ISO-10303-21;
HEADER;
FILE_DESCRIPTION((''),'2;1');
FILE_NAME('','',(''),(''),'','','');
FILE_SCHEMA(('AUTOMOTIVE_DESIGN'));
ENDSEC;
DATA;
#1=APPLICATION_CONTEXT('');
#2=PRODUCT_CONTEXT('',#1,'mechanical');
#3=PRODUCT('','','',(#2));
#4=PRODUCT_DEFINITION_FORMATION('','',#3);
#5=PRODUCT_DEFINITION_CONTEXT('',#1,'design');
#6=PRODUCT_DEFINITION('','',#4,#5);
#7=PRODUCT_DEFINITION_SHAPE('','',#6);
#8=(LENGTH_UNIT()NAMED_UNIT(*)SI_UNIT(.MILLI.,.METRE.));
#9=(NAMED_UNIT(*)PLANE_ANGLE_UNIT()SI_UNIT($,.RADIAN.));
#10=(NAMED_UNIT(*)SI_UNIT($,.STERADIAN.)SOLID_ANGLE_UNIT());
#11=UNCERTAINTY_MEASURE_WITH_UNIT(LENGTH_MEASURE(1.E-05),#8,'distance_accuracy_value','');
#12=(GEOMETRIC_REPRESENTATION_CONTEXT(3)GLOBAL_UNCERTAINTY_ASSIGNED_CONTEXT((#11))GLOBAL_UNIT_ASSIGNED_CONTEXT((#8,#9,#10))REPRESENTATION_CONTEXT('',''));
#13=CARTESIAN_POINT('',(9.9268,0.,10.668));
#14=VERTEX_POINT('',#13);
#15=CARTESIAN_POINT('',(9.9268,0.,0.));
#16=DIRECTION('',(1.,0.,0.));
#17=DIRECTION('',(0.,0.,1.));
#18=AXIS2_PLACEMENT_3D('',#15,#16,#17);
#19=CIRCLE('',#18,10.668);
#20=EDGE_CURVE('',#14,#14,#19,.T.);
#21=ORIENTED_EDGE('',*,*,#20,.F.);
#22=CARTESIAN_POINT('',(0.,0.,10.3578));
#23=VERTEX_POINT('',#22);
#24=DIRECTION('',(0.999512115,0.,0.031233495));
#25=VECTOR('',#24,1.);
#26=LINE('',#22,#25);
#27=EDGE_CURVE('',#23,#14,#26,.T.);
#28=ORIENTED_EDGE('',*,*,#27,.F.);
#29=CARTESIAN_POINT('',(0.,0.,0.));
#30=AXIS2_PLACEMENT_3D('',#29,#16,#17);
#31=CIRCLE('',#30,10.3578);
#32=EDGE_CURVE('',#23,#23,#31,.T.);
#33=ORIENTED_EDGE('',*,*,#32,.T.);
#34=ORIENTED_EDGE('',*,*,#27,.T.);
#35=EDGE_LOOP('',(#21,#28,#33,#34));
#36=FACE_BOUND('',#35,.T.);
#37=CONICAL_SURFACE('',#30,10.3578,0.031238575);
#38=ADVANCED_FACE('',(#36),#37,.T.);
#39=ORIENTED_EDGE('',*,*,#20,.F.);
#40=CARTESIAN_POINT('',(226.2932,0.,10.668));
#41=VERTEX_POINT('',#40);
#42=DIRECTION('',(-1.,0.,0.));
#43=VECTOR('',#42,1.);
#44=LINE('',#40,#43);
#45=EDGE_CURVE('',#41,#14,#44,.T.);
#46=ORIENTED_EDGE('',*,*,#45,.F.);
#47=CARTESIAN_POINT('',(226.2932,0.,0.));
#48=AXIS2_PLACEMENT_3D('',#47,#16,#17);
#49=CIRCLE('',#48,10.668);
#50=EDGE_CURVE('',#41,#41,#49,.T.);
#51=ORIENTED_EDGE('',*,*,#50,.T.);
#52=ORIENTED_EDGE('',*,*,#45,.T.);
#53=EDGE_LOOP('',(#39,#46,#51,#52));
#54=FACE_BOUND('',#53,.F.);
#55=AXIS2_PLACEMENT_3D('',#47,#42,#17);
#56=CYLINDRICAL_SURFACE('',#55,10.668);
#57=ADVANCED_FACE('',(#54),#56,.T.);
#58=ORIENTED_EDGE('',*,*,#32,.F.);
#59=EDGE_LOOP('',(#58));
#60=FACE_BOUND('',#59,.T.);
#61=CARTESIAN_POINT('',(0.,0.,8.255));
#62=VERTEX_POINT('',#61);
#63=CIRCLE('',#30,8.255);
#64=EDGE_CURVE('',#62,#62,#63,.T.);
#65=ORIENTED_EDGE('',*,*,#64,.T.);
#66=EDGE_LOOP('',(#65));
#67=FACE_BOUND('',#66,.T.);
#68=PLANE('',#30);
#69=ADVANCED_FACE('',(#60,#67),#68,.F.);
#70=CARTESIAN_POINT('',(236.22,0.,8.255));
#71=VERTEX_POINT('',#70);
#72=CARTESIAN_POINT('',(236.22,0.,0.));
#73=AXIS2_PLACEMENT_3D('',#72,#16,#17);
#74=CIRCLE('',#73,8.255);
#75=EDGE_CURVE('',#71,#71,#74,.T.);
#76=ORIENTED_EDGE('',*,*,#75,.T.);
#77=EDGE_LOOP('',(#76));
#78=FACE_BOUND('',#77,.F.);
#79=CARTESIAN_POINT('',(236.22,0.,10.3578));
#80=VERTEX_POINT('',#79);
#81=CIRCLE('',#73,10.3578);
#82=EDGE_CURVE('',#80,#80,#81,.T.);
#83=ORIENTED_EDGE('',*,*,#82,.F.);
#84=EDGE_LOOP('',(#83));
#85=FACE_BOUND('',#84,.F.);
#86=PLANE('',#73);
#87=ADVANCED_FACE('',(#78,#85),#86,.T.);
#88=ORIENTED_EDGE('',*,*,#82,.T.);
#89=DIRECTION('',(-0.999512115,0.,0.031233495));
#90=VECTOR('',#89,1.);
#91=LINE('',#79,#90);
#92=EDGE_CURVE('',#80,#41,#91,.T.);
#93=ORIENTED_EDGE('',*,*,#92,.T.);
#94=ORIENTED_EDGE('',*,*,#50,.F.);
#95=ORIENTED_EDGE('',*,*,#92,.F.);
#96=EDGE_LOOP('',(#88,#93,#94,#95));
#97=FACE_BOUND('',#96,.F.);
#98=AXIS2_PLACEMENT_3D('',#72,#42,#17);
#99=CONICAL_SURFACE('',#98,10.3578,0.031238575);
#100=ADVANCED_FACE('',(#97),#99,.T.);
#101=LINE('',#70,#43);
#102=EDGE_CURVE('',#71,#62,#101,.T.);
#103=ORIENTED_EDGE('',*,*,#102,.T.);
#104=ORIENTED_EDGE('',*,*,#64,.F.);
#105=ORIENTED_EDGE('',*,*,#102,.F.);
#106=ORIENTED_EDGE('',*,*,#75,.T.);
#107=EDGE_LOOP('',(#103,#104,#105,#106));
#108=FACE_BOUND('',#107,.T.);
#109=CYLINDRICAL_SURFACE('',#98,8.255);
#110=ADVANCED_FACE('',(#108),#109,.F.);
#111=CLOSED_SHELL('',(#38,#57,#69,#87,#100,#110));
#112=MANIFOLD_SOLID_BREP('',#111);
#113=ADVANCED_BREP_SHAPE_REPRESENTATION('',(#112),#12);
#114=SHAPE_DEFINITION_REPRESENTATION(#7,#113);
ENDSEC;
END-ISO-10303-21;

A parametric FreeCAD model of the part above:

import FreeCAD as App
import Part
import Sketcher

V = App.Vector
Q = App.Units.Quantity

doc = App.newDocument("Part")
params = doc.addObject("Spreadsheet::Sheet", "Params")
for row, (alias, value) in enumerate([
    ("sketch1_width", "9.3 in"),
    ("sketch1_length", "0.391 in"),
    ("revolution_angle", "360 deg"),
], start=1):
    params.set(f"A{row}", alias)
    params.set(f"B{row}", "=" + value)
    params.setAlias(f"B{row}", alias)

body = doc.addObject("PartDesign::Body", "Body")

sketch1 = body.newObject("Sketcher::SketchObject", "Sketch")
sketch1.AttachmentSupport = (doc.getObject("XZ_Plane"), [""])
sketch1.MapMode = "FlatFace"
sketch1.addGeometry([
    Part.LineSegment(V(236.22, 10.3578, 0), V(236.22, 8.255, 0)),
    Part.LineSegment(V(236.22, 8.255, 0), V(0, 8.255, 0)),
    Part.LineSegment(V(0, 8.255, 0), V(0, 10.3578, 0)),
    Part.LineSegment(V(0, 10.3578, 0), V(9.9268, 10.668, 0)),
    Part.LineSegment(V(9.9268, 10.668, 0), V(226.2932, 10.668, 0)),
    Part.LineSegment(V(226.2932, 10.668, 0), V(236.22, 10.3578, 0)),
], False)
sketch1.addConstraint([
    Sketcher.Constraint("Coincident", 0, 2, 1, 1),
    Sketcher.Constraint("Coincident", 1, 2, 2, 1),
    Sketcher.Constraint("Coincident", 2, 2, 3, 1),
    Sketcher.Constraint("Coincident", 3, 2, 4, 1),
    Sketcher.Constraint("Coincident", 4, 2, 5, 1),
    Sketcher.Constraint("Coincident", 5, 2, 0, 1),
    Sketcher.Constraint("Vertical", 0),
    Sketcher.Constraint("Horizontal", 1),
    Sketcher.Constraint("Vertical", 2),
    Sketcher.Constraint("Horizontal", 4),
    Sketcher.Constraint("PointOnObject", 1, 2, -2),
    Sketcher.Constraint("Horizontal", 2, 2, 5, 2),
    Sketcher.Constraint("Equal", 3, 5),
    Sketcher.Constraint("DistanceX", 1, 2, 1, 1, Q("9.3 in")),
    Sketcher.Constraint("Angle", 3, Q("1.7898 deg")),
    Sketcher.Constraint("DistanceY", -1, 1, 3, 2, Q("0.42 in")),
    Sketcher.Constraint("Distance", 3, Q("0.391 in")),
    Sketcher.Constraint("DistanceY", -1, 1, 0, 2, Q("0.325 in")),
])
sketch1.setExpression("Constraints[13]", "Params.sketch1_width")
sketch1.setExpression("Constraints[16]", "Params.sketch1_length")
revolution = body.newObject("PartDesign::Revolution", "Revolution")
revolution.Profile = sketch1
revolution.ReferenceAxis = (sketch1, ["H_Axis"])
revolution.setExpression("Angle", "Params.revolution_angle")

doc.recompute()
